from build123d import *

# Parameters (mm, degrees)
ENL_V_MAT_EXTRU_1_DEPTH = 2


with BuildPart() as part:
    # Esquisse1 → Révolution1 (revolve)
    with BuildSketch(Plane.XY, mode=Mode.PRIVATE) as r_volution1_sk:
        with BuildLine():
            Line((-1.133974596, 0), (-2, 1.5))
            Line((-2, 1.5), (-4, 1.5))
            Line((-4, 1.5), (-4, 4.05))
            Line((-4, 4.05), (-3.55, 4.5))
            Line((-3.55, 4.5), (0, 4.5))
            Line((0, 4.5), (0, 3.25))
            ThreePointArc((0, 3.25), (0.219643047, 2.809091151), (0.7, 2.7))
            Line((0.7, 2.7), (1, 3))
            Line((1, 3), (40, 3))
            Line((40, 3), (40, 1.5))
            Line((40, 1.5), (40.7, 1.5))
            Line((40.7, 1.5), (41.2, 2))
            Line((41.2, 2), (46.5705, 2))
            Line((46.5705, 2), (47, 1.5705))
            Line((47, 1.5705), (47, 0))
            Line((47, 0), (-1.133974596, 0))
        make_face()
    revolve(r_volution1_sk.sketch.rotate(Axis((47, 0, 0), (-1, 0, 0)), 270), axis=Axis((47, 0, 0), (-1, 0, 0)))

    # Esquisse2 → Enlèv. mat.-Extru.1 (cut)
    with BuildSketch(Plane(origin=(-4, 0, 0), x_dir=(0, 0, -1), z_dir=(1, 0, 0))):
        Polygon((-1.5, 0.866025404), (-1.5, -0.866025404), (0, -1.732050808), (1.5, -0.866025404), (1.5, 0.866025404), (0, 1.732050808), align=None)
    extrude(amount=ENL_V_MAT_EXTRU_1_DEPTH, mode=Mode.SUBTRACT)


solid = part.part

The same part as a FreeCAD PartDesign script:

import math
import FreeCAD as App
import Part
import Sketcher
Q = App.Units.Quantity


def add_polygon(sketch, points):
    """Adds a closed chain of lines whose ends are joined by coincident constraints."""
    first, n = sketch.GeometryCount, len(points)
    for a, b in zip(points, points[1:] + points[:1]):
        sketch.addGeometry(Part.LineSegment(App.Vector(*a, 0), App.Vector(*b, 0)), False)
    for i in range(n):
        sketch.addConstraint(Sketcher.Constraint("Coincident", first + i, 2, first + (i + 1) % n, 1))

doc = App.newDocument("Part")
body = doc.addObject("PartDesign::Body", "Body")

# Sketch on XY plane
sketch1 = doc.addObject("Sketcher::SketchObject", "Sketch")
body.addObject(sketch1)
sketch1.AttachmentSupport = (doc.XY_Plane, [""])
sketch1.MapMode = "FlatFace"
sketch1.addGeometry([
    Part.LineSegment(App.Vector(-2, 1.5, 0), App.Vector(-1.13, 0, 0)),  # 0
    Part.LineSegment(App.Vector(-1.13, 0, 0), App.Vector(47, 0, 0)),  # 1
    Part.LineSegment(App.Vector(47, 0, 0), App.Vector(47, 1.57, 0)),  # 2
    Part.LineSegment(App.Vector(47, 1.57, 0), App.Vector(46.57, 2, 0)),  # 3
    Part.LineSegment(App.Vector(46.57, 2, 0), App.Vector(41.2, 2, 0)),  # 4
    Part.LineSegment(App.Vector(41.2, 2, 0), App.Vector(40.7, 1.5, 0)),  # 5
    Part.LineSegment(App.Vector(40.7, 1.5, 0), App.Vector(40, 1.5, 0)),  # 6
    Part.LineSegment(App.Vector(40, 1.5, 0), App.Vector(40, 3, 0)),  # 7
    Part.LineSegment(App.Vector(40, 3, 0), App.Vector(1, 3, 0)),  # 8
    Part.LineSegment(App.Vector(1, 3, 0), App.Vector(0.7, 2.7, 0)),  # 9
    Part.ArcOfCircle(Part.Circle(App.Vector(0.57, 3.26, 0), App.Vector(0, 0, 1), 0.57), math.radians(-179), math.radians(-77)),  # 10
    Part.LineSegment(App.Vector(0, 3.25, 0), App.Vector(0, 4.5, 0)),  # 11
    Part.LineSegment(App.Vector(0, 4.5, 0), App.Vector(-3.55, 4.5, 0)),  # 12
    Part.LineSegment(App.Vector(-3.55, 4.5, 0), App.Vector(-4, 4.05, 0)),  # 13
    Part.LineSegment(App.Vector(-4, 4.05, 0), App.Vector(-4, 1.5, 0)),  # 14
    Part.LineSegment(App.Vector(-4, 1.5, 0), App.Vector(-2, 1.5, 0)),  # 15
], False)
sketch1.addConstraint([
    Sketcher.Constraint("Coincident", 0, 2, 1, 1),
    Sketcher.Constraint("Coincident", 1, 2, 2, 1),
    Sketcher.Constraint("Coincident", 2, 2, 3, 1),
    Sketcher.Constraint("Coincident", 3, 2, 4, 1),
    Sketcher.Constraint("Coincident", 4, 2, 5, 1),
    Sketcher.Constraint("Coincident", 5, 2, 6, 1),
    Sketcher.Constraint("Coincident", 6, 2, 7, 1),
    Sketcher.Constraint("Coincident", 7, 2, 8, 1),
    Sketcher.Constraint("Coincident", 8, 2, 9, 1),
    Sketcher.Constraint("Coincident", 9, 2, 10, 2),
    Sketcher.Constraint("Coincident", 10, 1, 11, 1),
    Sketcher.Constraint("Coincident", 11, 2, 12, 1),
    Sketcher.Constraint("Coincident", 12, 2, 13, 1),
    Sketcher.Constraint("Coincident", 13, 2, 14, 1),
    Sketcher.Constraint("Coincident", 14, 2, 15, 1),
    Sketcher.Constraint("Coincident", 15, 2, 0, 1),
    Sketcher.Constraint("Horizontal", 1),
    Sketcher.Constraint("Vertical", 2),
    Sketcher.Constraint("Horizontal", 4),
    Sketcher.Constraint("Horizontal", 6),
    Sketcher.Constraint("Vertical", 7),
    Sketcher.Constraint("Horizontal", 8),
    Sketcher.Constraint("Vertical", 11),
    Sketcher.Constraint("Horizontal", 12),
    Sketcher.Constraint("Vertical", 14),
    Sketcher.Constraint("Horizontal", 15),
    Sketcher.Constraint("PointOnObject", 0, 2, -1),
    Sketcher.Constraint("PointOnObject", 10, 1, -2),
    Sketcher.Constraint("Perpendicular", 3, 5),
    Sketcher.Constraint("Parallel", 5, 9),
    Sketcher.Constraint("Parallel", 9, 13),
    Sketcher.Constraint("Horizontal", 6, 2, 14, 2),
    Sketcher.Constraint("DistanceX", 8, 2, 8, 1, Q("39 mm")),
    Sketcher.Constraint("DistanceX", 15, 1, 15, 2, Q("2 mm")),
    Sketcher.Constraint("Angle", 0, Q("-60 deg")),
    Sketcher.Constraint("Angle", 3, Q("135 deg")),
    Sketcher.Constraint("DistanceX", 6, 2, 6, 1, Q("0.7 mm")),
    Sketcher.Constraint("DistanceY", 7, 1, 7, 2, Q("1.5 mm")),
    Sketcher.Constraint("DistanceX", -1, 1, 1, 2, Q("47 mm")),
    Sketcher.Constraint("DistanceY", -1, 1, 3, 2, Q("2 mm")),
    Sketcher.Constraint("DistanceX", -1, 1, 6, 2, Q("40 mm")),
    Sketcher.Constraint("DistanceY", -1, 1, 7, 2, Q("3 mm")),
    Sketcher.Constraint("DistanceX", 13, 2, -1, 1, Q("4 mm")),
    Sketcher.Constraint("Radius", 10, Q("0.575 mm")),
    Sketcher.Constraint("DistanceY", 14, 2, 12, 2, Q("3 mm")),
    Sketcher.Constraint("DistanceX", 12, 2, 12, 1, Q("3.55 mm")),
    Sketcher.Constraint("DistanceY", 11, 1, 11, 2, Q("1.25 mm")),
    Sketcher.Constraint("DistanceX", -1, 1, 9, 2, Q("0.7 mm")),
    Sketcher.Constraint("DistanceX", 4, 2, 4, 1, Q("5.3705 mm")),
])
revolution = doc.addObject("PartDesign::Revolution", "Revolution")
body.addObject(revolution)
revolution.Profile = sketch1
revolution.ReferenceAxis = (sketch1, ["H_Axis"])
revolution.Angle = 360

# Sketch on YZ plane
sketch2 = doc.addObject("Sketcher::SketchObject", "Sketch001")
body.addObject(sketch2)
sketch2.AttachmentSupport = (doc.YZ_Plane, [""])
sketch2.MapMode = "FlatFace"
sketch2.AttachmentOffset = App.Placement(App.Vector(0, 0, -4), App.Rotation())
add_polygon(sketch2, [(0.9, 1.5), (-0.9, 1.5), (-1.7, 0), (-0.9, -1.5), (0.9, -1.5), (1.7, 0)])  # lines 0-5
sketch2.addConstraint([
    Sketcher.Constraint("Horizontal", 0),
    Sketcher.Constraint("Horizontal", 3),
    Sketcher.Constraint("Symmetric", 0, 2, 3, 2, -1, 1),
    Sketcher.Constraint("Symmetric", 1, 2, 4, 2, -1, 1),
    Sketcher.Constraint("PointOnObject", 1, 2, -1),
    Sketcher.Constraint("Parallel", 2, 5),
    Sketcher.Constraint("Vertical", 0, 2, 2, 2),
    Sketcher.Constraint("Angle", 1, Q("-120 deg")),
    Sketcher.Constraint("DistanceY", 2, 2, 0, 2, Q("3 mm")),
    Sketcher.Constraint("DistanceX", 0, 2, 0, 1, Q("1.732051 mm")),
])
pocket1 = doc.addObject("PartDesign::Pocket", "Pocket")
body.addObject(pocket1)
pocket1.Profile = sketch2
pocket1.Length = 2
pocket1.Reversed = True

doc.recompute()
